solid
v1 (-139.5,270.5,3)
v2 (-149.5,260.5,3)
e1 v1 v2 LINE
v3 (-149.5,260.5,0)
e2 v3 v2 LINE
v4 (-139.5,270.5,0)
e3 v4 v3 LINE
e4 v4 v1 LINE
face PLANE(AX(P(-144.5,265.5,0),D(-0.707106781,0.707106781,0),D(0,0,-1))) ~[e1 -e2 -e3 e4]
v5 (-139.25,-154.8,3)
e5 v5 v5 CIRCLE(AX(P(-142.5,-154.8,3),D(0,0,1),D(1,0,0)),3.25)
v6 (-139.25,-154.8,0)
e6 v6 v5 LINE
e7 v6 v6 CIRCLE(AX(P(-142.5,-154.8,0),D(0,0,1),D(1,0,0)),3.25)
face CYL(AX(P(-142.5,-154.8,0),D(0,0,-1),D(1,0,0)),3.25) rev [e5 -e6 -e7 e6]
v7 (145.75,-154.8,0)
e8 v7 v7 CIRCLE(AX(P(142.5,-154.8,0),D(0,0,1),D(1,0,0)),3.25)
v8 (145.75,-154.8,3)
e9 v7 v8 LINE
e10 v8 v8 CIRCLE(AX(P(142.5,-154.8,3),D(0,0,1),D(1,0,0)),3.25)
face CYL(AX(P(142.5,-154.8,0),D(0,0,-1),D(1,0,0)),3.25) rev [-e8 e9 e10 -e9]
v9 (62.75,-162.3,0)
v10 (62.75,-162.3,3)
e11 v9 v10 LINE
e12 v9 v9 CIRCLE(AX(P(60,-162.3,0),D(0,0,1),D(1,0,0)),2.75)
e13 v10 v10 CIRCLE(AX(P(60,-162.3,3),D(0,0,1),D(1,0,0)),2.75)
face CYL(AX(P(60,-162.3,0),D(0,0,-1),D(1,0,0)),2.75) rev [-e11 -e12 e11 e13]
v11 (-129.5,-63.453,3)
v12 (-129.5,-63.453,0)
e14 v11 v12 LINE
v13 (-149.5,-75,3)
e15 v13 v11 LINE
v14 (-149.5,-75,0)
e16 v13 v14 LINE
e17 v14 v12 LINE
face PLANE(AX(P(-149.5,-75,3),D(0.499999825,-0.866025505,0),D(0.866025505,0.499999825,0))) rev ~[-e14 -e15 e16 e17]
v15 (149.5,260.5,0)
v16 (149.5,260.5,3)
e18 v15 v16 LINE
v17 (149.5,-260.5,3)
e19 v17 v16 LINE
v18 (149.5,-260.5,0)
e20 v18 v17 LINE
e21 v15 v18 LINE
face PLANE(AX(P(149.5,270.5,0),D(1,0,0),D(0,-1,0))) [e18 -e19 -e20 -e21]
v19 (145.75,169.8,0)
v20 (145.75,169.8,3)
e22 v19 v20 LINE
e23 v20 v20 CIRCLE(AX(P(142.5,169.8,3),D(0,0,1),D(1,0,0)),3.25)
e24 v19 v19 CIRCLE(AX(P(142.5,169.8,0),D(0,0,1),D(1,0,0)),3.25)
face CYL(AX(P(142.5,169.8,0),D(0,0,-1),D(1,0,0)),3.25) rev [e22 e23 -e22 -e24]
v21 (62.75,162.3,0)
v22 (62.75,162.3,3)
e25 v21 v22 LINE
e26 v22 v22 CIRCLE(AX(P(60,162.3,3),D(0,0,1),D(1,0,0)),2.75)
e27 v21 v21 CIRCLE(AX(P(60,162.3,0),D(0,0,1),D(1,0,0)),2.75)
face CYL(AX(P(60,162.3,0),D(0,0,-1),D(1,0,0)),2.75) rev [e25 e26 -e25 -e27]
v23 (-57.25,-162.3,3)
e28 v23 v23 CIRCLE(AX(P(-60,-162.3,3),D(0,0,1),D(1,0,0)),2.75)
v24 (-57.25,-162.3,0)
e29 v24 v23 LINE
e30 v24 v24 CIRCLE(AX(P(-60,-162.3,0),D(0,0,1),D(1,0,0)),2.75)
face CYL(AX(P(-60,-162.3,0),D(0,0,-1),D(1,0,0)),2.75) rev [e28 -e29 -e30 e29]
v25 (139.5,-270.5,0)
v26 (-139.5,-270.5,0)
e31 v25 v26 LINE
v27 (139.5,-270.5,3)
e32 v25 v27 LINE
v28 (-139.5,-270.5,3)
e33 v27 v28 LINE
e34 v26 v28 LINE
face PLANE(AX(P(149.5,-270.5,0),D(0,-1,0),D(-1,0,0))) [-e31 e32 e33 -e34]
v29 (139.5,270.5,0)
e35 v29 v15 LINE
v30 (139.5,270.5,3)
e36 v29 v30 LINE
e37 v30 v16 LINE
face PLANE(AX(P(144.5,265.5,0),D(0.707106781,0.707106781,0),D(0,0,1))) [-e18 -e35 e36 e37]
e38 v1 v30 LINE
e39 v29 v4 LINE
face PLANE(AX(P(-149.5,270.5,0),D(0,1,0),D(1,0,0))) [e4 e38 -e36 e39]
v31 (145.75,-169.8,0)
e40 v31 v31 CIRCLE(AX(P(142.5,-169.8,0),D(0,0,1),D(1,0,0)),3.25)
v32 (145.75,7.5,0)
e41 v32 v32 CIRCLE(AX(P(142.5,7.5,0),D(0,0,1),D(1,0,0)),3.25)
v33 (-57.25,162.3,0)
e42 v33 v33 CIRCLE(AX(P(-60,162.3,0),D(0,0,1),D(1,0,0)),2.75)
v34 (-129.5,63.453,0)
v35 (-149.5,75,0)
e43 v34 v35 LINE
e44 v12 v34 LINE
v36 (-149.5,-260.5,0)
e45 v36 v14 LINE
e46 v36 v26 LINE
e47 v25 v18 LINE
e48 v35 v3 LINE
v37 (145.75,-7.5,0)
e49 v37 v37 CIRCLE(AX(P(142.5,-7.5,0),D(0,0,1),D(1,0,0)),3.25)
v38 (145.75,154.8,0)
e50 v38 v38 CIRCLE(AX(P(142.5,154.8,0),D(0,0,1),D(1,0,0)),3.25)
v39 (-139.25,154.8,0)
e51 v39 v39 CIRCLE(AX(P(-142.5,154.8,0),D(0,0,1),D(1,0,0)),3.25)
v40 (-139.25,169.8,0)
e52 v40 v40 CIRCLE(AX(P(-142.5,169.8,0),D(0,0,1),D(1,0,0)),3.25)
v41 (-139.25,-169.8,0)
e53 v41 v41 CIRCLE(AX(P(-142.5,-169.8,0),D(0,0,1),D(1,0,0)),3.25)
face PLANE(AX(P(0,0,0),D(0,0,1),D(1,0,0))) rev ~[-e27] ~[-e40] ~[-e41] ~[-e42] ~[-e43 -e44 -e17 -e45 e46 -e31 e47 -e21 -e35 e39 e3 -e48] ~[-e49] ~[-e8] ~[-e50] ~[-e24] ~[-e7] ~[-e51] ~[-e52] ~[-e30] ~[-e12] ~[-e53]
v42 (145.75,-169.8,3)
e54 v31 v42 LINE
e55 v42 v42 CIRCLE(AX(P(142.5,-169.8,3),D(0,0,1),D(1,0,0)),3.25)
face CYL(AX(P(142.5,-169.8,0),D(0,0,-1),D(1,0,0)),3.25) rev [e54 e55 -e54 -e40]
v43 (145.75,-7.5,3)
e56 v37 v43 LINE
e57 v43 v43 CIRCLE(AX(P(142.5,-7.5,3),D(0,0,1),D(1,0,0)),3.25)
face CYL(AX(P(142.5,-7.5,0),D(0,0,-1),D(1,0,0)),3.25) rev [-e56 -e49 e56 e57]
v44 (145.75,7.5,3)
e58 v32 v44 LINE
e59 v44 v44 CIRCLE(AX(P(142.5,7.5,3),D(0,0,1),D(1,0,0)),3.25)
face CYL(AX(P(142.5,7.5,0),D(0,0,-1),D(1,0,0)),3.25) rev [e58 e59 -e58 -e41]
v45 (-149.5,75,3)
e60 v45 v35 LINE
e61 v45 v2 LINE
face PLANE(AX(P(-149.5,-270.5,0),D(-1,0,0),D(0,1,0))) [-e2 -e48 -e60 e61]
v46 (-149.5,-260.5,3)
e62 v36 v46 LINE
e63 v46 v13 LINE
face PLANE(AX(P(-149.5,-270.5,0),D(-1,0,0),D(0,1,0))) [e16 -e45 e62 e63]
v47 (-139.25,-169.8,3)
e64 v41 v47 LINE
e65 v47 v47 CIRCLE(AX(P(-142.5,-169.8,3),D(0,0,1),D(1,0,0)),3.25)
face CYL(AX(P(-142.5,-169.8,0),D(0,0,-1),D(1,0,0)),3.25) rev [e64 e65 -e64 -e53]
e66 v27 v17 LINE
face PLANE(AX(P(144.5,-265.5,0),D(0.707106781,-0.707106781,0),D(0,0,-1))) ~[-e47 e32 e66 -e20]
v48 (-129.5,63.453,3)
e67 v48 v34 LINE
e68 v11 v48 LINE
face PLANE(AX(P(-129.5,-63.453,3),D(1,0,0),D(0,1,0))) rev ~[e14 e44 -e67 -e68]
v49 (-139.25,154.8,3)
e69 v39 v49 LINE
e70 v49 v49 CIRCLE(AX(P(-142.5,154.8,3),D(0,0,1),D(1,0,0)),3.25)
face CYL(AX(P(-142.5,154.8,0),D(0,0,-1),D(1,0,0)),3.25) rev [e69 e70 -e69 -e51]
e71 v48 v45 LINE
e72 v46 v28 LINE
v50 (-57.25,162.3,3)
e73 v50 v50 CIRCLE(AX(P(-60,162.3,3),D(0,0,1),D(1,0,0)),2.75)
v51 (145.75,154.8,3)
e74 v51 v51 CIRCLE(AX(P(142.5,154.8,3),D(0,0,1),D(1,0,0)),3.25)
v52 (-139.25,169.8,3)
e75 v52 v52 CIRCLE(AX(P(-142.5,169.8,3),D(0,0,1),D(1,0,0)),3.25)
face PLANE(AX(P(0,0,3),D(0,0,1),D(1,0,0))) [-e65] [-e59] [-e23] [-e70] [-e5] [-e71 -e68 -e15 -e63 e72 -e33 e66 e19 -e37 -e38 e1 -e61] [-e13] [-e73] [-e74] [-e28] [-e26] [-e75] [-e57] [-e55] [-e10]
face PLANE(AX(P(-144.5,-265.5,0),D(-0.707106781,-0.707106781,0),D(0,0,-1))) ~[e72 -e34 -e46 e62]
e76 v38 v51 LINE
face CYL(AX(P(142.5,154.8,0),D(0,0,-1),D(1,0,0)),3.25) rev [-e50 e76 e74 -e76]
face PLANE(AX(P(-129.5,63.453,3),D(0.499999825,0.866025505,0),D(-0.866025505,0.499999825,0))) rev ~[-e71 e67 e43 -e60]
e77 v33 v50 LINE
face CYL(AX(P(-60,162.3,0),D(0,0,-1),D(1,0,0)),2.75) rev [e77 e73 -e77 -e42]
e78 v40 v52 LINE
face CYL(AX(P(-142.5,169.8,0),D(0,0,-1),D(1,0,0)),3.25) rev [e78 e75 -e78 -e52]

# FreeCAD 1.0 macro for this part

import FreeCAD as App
import Part
import Sketcher

V = App.Vector
Q = App.Units.Quantity


def edges_at(feature, points):
    """Names of the edges that pass closest to the given points."""
    edges = feature.Shape.Edges
    near = lambda p: min(range(len(edges)), key=lambda i: edges[i].distToShape(Part.Vertex(*p))[0])
    return sorted({f"Edge{near(p) + 1}" for p in points})


def add_polygon(sketch, points):
    """Adds a closed chain of lines whose ends are joined by coincident constraints."""
    first, n = sketch.GeometryCount, len(points)
    for a, b in zip(points, points[1:] + points[:1]):
        sketch.addGeometry(Part.LineSegment(App.Vector(*a, 0), App.Vector(*b, 0)), False)
    for i in range(n):
        sketch.addConstraint(Sketcher.Constraint("Coincident", first + i, 2, first + (i + 1) % n, 1))

doc = App.newDocument("Part")
params = doc.addObject("Spreadsheet::Sheet", "Params")
for row, (alias, value) in enumerate([
    ("sketch1_diameter", "6.5 mm"),
    ("sketch1_diameter2", "5.5 mm"),
    ("sketch1_width", "299 mm"),
    ("sketch1_height", "541 mm"),
    ("pad1_length", "3 mm"),
    ("chamfer_size", "10 mm"),
    ("sketch2_height", "150 mm"),
    ("pocket1_length", "10 mm"),
], start=1):
    params.set(f"A{row}", alias)
    params.set(f"B{row}", "=" + value)
    params.setAlias(f"B{row}", alias)

body = doc.addObject("PartDesign::Body", "Body")

# Sketch on XY plane
sketch1 = body.newObject("Sketcher::SketchObject", "Sketch")
sketch1.AttachmentSupport = (doc.getObject("XY_Plane"), [""])
sketch1.MapMode = "FlatFace"
add_polygon(sketch1, [(-149.5, 270.5), (-149.5, -270.5), (149.5, -270.5), (149.5, 270.5)])  # lines 0-3
sketch1.addGeometry(Part.Circle(V(-142.5, -169.8, 0), V(0, 0, 1), 3.2), False)  # 4
sketch1.addGeometry(Part.Circle(V(-142.5, -154.8, 0), V(0, 0, 1), 3.2), False)  # 5
sketch1.addGeometry(Part.Circle(V(-60, -162.3, 0), V(0, 0, 1), 2.8), False)  # 6
sketch1.addGeometry(Part.Circle(V(-142.5, -7.5, 0), V(0, 0, 1), 3.2), False)  # 7
sketch1.addGeometry(Part.Circle(V(60, -162.3, 0), V(0, 0, 1), 2.8), False)  # 8
sketch1.addGeometry(Part.Circle(V(142.5, -169.8, 0), V(0, 0, 1), 3.2), False)  # 9
sketch1.addGeometry(Part.Circle(V(142.5, -154.8, 0), V(0, 0, 1), 3.2), False)  # 10
sketch1.addGeometry(Part.Circle(V(142.5, -7.5, 0), V(0, 0, 1), 3.2), False)  # 11
sketch1.addGeometry(Part.Circle(V(-142.5, 7.5, 0), V(0, 0, 1), 3.2), False)  # 12
sketch1.addGeometry(Part.Circle(V(-142.5, 154.8, 0), V(0, 0, 1), 3.2), False)  # 13
sketch1.addGeometry(Part.Circle(V(-142.5, 169.8, 0), V(0, 0, 1), 3.2), False)  # 14
sketch1.addGeometry(Part.Circle(V(-60, 162.3, 0), V(0, 0, 1), 2.8), False)  # 15
sketch1.addGeometry(Part.Circle(V(142.5, 7.5, 0), V(0, 0, 1), 3.2), False)  # 16
sketch1.addGeometry(Part.Circle(V(60, 162.3, 0), V(0, 0, 1), 2.8), False)  # 17
sketch1.addGeometry(Part.Circle(V(142.5, 154.8, 0), V(0, 0, 1), 3.2), False)  # 18
sketch1.addGeometry(Part.Circle(V(142.5, 169.8, 0), V(0, 0, 1), 3.2), False)  # 19
sketch1.addConstraint([
    Sketcher.Constraint("Vertical", 0),
    Sketcher.Constraint("Horizontal", 1),
    Sketcher.Constraint("Vertical", 2),
    Sketcher.Constraint("Horizontal", 3),
    Sketcher.Constraint("Equal", 4, 5),
    Sketcher.Constraint("Equal", 5, 7),
    Sketcher.Constraint("Equal", 6, 8),
    Sketcher.Constraint("Equal", 7, 9),
    Sketcher.Constraint("Equal", 9, 10),
    Sketcher.Constraint("Equal", 10, 11),
    Sketcher.Constraint("Equal", 11, 12),
    Sketcher.Constraint("Equal", 12, 13),
    Sketcher.Constraint("Equal", 13, 14),
    Sketcher.Constraint("Equal", 8, 15),
    Sketcher.Constraint("Equal", 14, 16),
    Sketcher.Constraint("Equal", 15, 17),
    Sketcher.Constraint("Equal", 16, 18),
    Sketcher.Constraint("Equal", 18, 19),
    Sketcher.Constraint("Symmetric", 11, 3, 12, 3, -1, 1),
    Sketcher.Constraint("Symmetric", 10, 3, 13, 3, -1, 1),
    Sketcher.Constraint("Symmetric", 9, 3, 14, 3, -1, 1),
    Sketcher.Constraint("Symmetric", 8, 3, 15, 3, -1, 1),
    Sketcher.Constraint("Symmetric", 7, 3, 16, 3, -1, 1),
    Sketcher.Constraint("Symmetric", 6, 3, 17, 3, -1, 1),
    Sketcher.Constraint("Symmetric", 5, 3, 18, 3, -1, 1),
    Sketcher.Constraint("Symmetric", 4, 3, 19, 3, -1, 1),
    Sketcher.Constraint("Symmetric", 0, 2, 2, 2, -1, 1),
    Sketcher.Constraint("Symmetric", 6, 3, 8, 3, -2),
    Sketcher.Constraint("Symmetric", 4, 3, 9, 3, -2),
    Sketcher.Constraint("Symmetric", 5, 3, 10, 3, -2),
    Sketcher.Constraint("Symmetric", 7, 3, 11, 3, -2),
    Sketcher.Constraint("Vertical", 4, 3, 5, 3),
    Sketcher.Constraint("Vertical", 5, 3, 7, 3),
    Sketcher.Constraint("Diameter", 4, 6.5),
    Sketcher.Constraint("Diameter", 6, 5.5),
    Sketcher.Constraint("DistanceX", 1, 1, 1, 2, 299.0),
    Sketcher.Constraint("DistanceY", 0, 2, 0, 1, 541.0),
    Sketcher.Constraint("DistanceX", 6, 3, -1, 1, 60.0),
    Sketcher.Constraint("DistanceY", 4, 3, 5, 3, 15.0),
    Sketcher.Constraint("DistanceY", 7, 3, 12, 3, 15.0),
    Sketcher.Constraint("DistanceX", 0, 2, 4, 3, 7.0),
    Sketcher.Constraint("DistanceY", 4, 3, 6, 3, 7.5),
    Sketcher.Constraint("DistanceY", 0, 2, 6, 3, 108.2),
])
sketch1.setExpression("Constraints[37]", "Params.sketch1_diameter")
sketch1.setExpression("Constraints[38]", "Params.sketch1_diameter2")
sketch1.setExpression("Constraints[39]", "Params.sketch1_width")
sketch1.setExpression("Constraints[40]", "Params.sketch1_height")
pad1 = body.newObject("PartDesign::Pad", "Pad")
pad1.Profile = sketch1
pad1.setExpression("Length", "Params.pad1_length")
doc.recompute()

chamfer = body.newObject("PartDesign::Chamfer", "Chamfer")
chamfer.Base = (pad1, edges_at(pad1, [
    (149.5, 270.5, 1.5),
    (149.5, -270.5, 1.5),
    (-149.5, -270.5, 1.5),
    (-149.5, 270.5, 1.5),
]))
chamfer.setExpression("Size", "Params.chamfer_size")

# Sketch on XY plane
sketch2 = body.newObject("Sketcher::SketchObject", "Sketch001")
sketch2.AttachmentSupport = (doc.getObject("XY_Plane"), [""])
sketch2.MapMode = "FlatFace"
sketch2.AttachmentOffset = App.Placement(V(0, 0, 3), App.Rotation())
add_polygon(sketch2, [(-130, 63), (-150, 75), (-150, -75), (-130, -63)])  # lines 0-3
sketch2.addConstraint([
    Sketcher.Constraint("Vertical", 1),
    Sketcher.Constraint("Vertical", 3),
    Sketcher.Constraint("Equal", 0, 2),
    Sketcher.Constraint("DistanceY", 1, 2, 1, 1, 150.0),
    Sketcher.Constraint("Angle", 0, Q("150 deg")),
    Sketcher.Constraint("DistanceX", 1, 2, 2, 2, 20.0),
    Sketcher.Constraint("DistanceY", -1, 1, 0, 2, 75.0),
    Sketcher.Constraint("DistanceX", 0, 2, -1, 1, 149.5),
])
sketch2.setExpression("Constraints[7]", "Params.sketch2_height")
pocket1 = body.newObject("PartDesign::Pocket", "Pocket")
pocket1.Profile = sketch2
pocket1.setExpression("Length", "Params.pocket1_length")

doc.recompute()
